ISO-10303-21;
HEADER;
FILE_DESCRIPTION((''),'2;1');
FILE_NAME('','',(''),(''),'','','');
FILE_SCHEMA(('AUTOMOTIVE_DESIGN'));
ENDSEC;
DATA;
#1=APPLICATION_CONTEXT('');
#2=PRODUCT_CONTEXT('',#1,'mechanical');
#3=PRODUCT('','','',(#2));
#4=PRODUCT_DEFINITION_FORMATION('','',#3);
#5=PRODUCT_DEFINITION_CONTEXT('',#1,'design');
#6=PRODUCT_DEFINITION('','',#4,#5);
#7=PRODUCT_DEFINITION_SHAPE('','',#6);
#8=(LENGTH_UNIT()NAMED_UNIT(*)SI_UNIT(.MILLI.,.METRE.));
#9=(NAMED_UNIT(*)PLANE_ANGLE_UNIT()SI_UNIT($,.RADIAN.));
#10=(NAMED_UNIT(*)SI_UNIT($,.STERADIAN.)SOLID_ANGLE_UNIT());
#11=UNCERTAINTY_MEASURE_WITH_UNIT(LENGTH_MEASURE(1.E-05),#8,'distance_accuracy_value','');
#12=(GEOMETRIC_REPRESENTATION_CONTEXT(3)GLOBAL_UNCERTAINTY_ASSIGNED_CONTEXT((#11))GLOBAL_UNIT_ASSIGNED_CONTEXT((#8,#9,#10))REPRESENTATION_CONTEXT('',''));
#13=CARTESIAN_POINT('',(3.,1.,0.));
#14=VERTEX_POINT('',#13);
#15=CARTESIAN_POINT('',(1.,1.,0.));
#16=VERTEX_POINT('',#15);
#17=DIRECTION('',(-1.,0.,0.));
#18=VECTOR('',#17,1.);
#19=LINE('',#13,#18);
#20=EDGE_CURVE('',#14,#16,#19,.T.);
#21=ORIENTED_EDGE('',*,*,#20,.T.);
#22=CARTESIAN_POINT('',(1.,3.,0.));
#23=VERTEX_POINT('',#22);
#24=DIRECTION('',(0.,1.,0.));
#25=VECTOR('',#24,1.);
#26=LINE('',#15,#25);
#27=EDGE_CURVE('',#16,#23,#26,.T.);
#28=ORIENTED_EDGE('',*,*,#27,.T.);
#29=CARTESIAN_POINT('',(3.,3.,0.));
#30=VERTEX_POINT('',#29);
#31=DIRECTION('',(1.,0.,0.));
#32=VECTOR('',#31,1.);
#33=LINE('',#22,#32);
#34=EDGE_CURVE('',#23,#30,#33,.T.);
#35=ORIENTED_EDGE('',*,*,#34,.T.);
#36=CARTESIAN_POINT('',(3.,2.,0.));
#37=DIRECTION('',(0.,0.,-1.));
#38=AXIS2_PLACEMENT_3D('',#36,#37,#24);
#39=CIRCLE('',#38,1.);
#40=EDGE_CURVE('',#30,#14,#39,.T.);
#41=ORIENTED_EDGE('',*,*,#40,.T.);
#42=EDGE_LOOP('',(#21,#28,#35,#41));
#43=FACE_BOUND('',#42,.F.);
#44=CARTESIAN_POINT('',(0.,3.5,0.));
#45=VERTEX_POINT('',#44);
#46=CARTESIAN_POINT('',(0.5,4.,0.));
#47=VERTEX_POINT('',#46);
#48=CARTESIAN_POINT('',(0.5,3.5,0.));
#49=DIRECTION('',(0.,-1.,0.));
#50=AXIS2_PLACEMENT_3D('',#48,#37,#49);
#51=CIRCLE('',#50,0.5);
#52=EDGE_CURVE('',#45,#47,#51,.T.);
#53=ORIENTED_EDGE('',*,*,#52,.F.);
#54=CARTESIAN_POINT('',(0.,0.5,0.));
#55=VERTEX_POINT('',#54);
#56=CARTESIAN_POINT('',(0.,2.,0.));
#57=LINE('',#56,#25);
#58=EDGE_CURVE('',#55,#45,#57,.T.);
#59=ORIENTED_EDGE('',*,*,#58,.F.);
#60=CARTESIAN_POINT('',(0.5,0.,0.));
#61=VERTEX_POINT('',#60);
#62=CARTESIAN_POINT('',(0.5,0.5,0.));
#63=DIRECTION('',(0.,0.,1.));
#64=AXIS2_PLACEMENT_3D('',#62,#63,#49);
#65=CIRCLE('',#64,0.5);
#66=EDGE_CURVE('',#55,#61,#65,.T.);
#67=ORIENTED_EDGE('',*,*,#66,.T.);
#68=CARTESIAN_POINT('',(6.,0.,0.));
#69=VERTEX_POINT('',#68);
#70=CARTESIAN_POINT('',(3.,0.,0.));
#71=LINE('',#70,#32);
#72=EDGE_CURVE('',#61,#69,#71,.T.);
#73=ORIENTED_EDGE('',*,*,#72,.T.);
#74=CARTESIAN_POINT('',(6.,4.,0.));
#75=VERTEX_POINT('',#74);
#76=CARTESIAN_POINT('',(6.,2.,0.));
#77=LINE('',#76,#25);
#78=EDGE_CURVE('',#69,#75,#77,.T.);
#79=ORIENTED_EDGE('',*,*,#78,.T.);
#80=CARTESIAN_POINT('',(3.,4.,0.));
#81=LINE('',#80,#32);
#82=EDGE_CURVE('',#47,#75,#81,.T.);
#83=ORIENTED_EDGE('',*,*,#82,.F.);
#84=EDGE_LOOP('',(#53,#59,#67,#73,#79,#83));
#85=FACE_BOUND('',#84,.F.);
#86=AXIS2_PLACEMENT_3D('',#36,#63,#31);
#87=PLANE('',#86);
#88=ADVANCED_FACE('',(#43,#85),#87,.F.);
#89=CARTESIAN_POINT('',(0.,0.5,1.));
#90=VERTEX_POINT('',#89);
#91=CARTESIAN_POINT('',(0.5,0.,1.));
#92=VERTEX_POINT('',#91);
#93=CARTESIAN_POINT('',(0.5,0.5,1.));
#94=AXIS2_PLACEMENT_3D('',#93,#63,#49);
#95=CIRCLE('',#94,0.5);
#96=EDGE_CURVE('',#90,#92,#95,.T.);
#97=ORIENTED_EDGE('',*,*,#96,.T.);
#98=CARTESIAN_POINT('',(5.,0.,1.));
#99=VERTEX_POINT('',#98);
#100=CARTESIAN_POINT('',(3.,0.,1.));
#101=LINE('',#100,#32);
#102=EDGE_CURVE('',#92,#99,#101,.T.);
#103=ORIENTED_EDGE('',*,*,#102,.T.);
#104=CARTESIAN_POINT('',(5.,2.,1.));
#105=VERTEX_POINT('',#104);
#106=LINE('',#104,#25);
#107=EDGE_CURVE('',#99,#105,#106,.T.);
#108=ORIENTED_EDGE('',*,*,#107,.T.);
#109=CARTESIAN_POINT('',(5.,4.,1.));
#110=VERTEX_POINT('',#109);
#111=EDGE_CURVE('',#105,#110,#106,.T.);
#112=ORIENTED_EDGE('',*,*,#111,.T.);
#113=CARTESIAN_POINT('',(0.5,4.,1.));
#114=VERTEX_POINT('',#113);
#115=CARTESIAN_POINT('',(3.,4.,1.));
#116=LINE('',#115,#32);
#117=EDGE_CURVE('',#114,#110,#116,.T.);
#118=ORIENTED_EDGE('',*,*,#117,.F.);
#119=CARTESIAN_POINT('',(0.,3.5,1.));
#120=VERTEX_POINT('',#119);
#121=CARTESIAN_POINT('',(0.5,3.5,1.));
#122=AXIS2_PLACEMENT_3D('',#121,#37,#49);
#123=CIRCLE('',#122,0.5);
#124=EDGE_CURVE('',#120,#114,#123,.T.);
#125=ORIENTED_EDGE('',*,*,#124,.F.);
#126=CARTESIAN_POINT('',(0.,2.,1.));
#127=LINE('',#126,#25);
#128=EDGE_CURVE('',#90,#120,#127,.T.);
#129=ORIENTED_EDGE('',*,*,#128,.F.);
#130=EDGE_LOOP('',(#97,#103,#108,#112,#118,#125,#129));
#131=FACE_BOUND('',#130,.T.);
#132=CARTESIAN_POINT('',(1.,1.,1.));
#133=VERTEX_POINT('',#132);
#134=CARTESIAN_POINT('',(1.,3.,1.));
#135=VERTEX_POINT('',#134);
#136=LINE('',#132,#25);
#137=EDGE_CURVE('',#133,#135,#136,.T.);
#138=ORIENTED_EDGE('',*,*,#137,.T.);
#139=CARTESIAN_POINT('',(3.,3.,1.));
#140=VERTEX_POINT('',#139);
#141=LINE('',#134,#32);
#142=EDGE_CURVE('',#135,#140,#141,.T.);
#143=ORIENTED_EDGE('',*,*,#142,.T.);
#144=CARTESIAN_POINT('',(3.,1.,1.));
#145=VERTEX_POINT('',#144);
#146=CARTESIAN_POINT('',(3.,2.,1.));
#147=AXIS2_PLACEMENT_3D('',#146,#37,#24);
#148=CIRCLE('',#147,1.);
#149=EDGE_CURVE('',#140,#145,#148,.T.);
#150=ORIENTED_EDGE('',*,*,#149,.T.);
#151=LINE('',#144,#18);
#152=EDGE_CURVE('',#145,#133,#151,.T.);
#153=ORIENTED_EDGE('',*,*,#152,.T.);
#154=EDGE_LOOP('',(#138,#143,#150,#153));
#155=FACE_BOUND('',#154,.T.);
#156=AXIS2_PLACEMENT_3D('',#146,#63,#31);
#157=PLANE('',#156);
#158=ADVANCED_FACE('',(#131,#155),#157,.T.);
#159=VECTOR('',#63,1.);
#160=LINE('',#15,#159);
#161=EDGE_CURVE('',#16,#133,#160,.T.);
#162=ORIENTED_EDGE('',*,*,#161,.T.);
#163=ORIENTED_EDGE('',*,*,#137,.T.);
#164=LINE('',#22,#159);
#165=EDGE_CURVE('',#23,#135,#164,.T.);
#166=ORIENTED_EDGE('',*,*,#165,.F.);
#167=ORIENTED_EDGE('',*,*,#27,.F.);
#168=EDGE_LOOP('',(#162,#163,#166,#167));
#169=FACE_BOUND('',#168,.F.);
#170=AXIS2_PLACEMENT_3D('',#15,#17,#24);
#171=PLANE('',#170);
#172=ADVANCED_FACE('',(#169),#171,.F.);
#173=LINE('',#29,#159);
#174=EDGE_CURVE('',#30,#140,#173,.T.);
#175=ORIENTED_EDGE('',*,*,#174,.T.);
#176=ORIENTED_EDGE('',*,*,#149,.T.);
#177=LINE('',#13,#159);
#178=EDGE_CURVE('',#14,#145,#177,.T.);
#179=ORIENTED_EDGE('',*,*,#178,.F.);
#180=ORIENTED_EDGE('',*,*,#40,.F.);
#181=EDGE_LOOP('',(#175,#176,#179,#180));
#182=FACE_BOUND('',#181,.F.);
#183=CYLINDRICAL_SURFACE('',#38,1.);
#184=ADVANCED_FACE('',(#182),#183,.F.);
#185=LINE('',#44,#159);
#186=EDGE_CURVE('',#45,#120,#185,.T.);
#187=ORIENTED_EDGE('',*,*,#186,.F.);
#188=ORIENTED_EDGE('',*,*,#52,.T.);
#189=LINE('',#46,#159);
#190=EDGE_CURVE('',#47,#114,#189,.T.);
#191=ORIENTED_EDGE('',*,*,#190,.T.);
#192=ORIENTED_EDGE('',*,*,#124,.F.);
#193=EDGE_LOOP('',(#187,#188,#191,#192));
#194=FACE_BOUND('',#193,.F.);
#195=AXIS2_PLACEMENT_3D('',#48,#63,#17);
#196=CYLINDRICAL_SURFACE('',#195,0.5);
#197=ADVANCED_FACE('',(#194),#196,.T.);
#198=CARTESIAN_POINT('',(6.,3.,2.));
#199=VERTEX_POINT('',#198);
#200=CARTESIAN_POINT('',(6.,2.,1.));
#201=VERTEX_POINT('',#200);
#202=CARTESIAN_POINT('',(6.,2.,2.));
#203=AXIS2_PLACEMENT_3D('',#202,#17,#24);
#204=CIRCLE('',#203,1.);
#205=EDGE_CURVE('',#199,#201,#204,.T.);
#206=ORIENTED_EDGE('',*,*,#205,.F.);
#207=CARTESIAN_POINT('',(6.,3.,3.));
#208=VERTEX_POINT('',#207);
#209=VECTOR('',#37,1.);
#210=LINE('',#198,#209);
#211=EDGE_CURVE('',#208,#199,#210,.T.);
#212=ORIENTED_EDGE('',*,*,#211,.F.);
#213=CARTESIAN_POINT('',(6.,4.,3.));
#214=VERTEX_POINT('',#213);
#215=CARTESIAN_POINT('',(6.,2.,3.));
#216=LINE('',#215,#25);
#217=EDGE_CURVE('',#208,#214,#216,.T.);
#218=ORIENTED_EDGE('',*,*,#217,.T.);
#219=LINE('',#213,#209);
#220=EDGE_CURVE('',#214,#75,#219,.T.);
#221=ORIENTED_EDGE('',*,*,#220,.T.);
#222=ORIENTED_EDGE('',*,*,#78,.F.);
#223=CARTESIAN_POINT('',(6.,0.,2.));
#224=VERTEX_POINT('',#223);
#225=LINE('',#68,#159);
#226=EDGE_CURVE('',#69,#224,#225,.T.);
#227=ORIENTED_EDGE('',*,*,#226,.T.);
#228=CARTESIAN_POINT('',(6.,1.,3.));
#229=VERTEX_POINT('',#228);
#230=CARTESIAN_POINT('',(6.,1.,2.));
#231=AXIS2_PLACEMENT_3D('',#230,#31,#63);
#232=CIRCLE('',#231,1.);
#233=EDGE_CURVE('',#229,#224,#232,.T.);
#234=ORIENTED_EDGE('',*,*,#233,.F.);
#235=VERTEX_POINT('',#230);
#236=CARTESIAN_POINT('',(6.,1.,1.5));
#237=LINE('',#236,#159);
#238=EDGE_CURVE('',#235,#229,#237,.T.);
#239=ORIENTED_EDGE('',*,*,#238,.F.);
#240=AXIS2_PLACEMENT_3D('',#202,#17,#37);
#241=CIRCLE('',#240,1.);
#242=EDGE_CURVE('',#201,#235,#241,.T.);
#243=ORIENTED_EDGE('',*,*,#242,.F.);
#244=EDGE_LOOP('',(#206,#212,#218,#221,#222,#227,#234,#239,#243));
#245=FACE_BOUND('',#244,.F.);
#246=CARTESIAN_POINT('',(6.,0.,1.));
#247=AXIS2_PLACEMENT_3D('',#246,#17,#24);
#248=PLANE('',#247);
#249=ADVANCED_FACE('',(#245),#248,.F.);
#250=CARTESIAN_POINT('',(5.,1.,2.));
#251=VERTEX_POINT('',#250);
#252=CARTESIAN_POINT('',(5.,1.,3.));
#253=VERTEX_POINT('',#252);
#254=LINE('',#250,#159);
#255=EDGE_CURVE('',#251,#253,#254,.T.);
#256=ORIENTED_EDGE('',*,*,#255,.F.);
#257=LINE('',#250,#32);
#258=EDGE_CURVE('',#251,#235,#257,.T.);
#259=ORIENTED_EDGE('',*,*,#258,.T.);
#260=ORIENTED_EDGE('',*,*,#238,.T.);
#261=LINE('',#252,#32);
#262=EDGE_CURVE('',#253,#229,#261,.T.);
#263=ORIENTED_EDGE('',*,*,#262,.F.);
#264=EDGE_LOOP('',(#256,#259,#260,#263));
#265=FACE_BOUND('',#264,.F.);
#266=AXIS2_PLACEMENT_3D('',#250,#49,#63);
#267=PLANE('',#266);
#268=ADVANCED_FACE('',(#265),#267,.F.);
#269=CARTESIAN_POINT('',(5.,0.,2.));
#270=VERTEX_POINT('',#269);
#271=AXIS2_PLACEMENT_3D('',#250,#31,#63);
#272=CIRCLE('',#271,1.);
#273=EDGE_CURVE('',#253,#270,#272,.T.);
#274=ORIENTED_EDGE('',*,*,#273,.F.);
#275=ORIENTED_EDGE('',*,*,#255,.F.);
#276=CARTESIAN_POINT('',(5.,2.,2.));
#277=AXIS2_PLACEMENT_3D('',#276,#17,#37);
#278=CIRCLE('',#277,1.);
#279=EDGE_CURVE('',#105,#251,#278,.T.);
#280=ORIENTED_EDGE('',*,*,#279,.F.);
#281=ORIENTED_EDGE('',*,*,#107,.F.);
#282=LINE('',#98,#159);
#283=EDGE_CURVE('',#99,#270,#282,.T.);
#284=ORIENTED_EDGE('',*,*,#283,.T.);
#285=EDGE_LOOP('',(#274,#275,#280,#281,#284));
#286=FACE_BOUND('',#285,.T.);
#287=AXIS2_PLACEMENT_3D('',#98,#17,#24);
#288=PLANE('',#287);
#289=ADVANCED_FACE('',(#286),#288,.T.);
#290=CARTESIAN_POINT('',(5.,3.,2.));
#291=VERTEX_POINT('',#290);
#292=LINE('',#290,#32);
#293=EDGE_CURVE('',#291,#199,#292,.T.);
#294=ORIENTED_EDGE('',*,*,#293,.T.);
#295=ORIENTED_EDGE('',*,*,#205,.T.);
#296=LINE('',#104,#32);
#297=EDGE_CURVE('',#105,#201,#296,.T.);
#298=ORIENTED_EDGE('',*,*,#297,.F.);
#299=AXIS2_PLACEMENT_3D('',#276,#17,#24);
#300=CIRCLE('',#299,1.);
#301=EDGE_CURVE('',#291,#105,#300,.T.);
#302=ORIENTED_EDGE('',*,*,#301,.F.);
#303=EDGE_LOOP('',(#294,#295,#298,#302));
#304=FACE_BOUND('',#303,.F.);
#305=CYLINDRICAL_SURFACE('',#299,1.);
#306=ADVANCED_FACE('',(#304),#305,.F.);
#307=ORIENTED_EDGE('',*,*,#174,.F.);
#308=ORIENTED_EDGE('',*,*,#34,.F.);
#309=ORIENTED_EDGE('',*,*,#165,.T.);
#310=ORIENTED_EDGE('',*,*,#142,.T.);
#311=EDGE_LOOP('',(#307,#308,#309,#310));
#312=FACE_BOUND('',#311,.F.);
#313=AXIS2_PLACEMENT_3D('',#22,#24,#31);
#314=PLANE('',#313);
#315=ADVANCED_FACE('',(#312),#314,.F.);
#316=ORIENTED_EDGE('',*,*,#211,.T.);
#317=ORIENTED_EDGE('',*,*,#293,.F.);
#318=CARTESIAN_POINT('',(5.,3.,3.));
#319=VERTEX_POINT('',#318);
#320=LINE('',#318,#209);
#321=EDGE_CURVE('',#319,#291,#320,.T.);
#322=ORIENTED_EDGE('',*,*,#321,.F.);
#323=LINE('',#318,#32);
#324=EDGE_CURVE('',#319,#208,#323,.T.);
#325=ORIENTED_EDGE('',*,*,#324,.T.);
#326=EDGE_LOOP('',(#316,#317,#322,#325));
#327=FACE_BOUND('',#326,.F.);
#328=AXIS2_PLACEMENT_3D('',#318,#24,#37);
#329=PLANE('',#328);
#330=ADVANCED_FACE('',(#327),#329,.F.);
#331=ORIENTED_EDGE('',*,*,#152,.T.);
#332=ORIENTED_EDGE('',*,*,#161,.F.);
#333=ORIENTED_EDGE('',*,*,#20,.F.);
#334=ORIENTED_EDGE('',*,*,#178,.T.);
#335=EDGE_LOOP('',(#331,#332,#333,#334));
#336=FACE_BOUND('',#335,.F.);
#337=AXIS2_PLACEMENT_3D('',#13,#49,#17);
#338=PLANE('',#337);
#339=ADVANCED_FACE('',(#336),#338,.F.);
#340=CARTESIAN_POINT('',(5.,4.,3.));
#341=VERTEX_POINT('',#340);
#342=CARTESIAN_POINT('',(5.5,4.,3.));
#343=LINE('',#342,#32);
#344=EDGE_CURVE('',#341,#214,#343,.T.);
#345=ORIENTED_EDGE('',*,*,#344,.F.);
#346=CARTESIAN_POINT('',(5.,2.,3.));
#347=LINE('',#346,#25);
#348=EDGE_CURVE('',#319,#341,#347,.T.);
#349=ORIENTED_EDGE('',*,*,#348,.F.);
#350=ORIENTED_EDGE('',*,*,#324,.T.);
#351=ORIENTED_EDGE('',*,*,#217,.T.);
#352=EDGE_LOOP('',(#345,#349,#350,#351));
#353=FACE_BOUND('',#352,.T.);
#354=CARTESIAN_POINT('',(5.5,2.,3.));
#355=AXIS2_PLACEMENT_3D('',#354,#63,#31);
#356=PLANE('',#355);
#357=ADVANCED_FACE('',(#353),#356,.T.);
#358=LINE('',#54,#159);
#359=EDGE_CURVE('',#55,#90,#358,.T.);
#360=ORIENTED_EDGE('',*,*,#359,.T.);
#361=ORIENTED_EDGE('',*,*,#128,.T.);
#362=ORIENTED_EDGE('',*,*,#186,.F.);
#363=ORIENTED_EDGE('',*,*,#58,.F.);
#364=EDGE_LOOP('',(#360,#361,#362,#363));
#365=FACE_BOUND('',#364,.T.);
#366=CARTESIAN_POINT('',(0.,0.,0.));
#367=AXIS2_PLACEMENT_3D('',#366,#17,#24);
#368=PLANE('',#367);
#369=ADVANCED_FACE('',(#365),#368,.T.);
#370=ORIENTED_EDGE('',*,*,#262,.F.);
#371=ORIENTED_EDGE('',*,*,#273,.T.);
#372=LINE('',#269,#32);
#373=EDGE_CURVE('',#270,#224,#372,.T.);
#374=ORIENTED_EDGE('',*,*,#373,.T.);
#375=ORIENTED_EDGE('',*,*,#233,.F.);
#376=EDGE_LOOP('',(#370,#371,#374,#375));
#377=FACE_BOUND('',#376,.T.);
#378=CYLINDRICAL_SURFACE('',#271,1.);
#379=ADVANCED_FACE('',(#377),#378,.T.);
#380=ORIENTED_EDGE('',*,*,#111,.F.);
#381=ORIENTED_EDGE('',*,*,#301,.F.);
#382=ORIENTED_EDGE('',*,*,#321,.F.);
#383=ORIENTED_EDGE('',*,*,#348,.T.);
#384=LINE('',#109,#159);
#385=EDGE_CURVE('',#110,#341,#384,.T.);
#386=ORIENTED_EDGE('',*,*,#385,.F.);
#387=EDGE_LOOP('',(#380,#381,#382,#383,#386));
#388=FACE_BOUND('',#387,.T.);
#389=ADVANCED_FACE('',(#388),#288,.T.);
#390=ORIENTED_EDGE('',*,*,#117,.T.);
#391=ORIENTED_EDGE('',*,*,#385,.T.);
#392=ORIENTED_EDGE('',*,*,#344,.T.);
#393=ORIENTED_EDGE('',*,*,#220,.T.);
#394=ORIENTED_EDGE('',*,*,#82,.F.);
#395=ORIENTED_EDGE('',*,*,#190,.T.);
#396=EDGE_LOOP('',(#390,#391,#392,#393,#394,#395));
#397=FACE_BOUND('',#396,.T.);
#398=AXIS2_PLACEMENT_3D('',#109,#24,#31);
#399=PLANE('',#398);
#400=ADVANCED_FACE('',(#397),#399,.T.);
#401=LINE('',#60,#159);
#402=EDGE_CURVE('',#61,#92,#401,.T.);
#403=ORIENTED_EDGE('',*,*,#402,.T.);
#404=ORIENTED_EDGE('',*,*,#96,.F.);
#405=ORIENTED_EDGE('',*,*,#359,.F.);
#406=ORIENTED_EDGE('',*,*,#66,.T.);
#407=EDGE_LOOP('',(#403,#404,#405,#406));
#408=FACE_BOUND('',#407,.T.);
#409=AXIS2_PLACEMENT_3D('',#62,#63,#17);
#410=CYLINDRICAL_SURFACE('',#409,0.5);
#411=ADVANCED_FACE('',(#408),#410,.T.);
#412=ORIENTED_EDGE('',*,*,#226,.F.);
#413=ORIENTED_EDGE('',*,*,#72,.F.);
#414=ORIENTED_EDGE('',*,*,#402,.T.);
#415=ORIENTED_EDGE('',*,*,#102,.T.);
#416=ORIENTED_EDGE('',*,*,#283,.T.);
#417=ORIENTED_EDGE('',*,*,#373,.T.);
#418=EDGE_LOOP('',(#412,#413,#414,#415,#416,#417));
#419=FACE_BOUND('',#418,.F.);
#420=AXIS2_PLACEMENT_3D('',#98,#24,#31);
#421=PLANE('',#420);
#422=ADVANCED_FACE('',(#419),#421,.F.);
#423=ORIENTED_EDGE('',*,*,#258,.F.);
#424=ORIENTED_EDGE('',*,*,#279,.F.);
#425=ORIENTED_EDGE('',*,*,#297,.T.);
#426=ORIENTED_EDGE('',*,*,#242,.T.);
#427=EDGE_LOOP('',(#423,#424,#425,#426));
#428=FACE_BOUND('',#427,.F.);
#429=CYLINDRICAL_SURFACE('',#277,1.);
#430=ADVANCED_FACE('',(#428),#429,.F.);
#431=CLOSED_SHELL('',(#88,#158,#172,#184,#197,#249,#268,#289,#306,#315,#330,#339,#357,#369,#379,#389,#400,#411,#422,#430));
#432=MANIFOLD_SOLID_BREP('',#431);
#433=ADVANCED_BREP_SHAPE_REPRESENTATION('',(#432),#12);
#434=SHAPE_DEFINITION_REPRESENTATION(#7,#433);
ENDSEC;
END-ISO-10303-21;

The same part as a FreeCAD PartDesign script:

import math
import FreeCAD as App
import Part
import Sketcher

V = App.Vector


def edges_at(feature, points):
    """Names of the edges that pass closest to the given points."""
    edges = feature.Shape.Edges
    near = lambda p: min(range(len(edges)), key=lambda i: edges[i].distToShape(Part.Vertex(*p))[0])
    return sorted({f"Edge{near(p) + 1}" for p in points})


def add_polygon(sketch, points):
    """Adds a closed chain of lines whose ends are joined by coincident constraints."""
    first, n = sketch.GeometryCount, len(points)
    for a, b in zip(points, points[1:] + points[:1]):
        sketch.addGeometry(Part.LineSegment(App.Vector(*a, 0), App.Vector(*b, 0)), False)
    for i in range(n):
        sketch.addConstraint(Sketcher.Constraint("Coincident", first + i, 2, first + (i + 1) % n, 1))

doc = App.newDocument("Part")
params = doc.addObject("Spreadsheet::Sheet", "Params")
for row, (alias, value) in enumerate([
    ("sketch1_radius", "1 mm"),
    ("sketch1_width", "6 mm"),
    ("sketch1_height", "4 mm"),
    ("pad1_length", "1 mm"),
    ("fillet_radius", "0.5 mm"),
    ("sketch2_width", "1 mm"),
    ("sketch2_height", "4 mm"),
    ("pad2_length", "2 mm"),
    ("fillet2_radius", "1 mm"),
    ("sketch3_radius", "1 mm"),
    ("sketch3_height", "1 mm"),
    ("pocket1_length", "25 mm"),
], start=1):
    params.set(f"A{row}", alias)
    params.set(f"B{row}", "=" + value)
    params.setAlias(f"B{row}", alias)

body = doc.addObject("PartDesign::Body", "Body")

sketch1 = body.newObject("Sketcher::SketchObject", "Sketch")
sketch1.AttachmentSupport = (doc.getObject("XY_Plane"), [""])
sketch1.MapMode = "FlatFace"
add_polygon(sketch1, [(0, 4), (0, 0), (6, 0), (6, 4)])
sketch1.addGeometry(Part.ArcOfCircle(Part.Circle(V(3, 2, 0), V(0, 0, 1), 1), math.radians(-90), math.radians(90)), False)
sketch1.addGeometry(Part.LineSegment(V(3, 1, 0), V(1, 1, 0)), False)
sketch1.addGeometry(Part.LineSegment(V(1, 1, 0), V(1, 3, 0)), False)
sketch1.addGeometry(Part.LineSegment(V(1, 3, 0), V(3, 3, 0)), False)
sketch1.addConstraint([
    Sketcher.Constraint("Tangent", 4, 1, 5, 1),
    Sketcher.Constraint("Coincident", 5, 2, 6, 1),
    Sketcher.Constraint("Coincident", 6, 2, 7, 1),
    Sketcher.Constraint("Tangent", 7, 2, 4, 2),
    Sketcher.Constraint("Vertical", 0),
    Sketcher.Constraint("Horizontal", 1),
    Sketcher.Constraint("Vertical", 2),
    Sketcher.Constraint("Horizontal", 3),
    Sketcher.Constraint("Horizontal", 5),
    Sketcher.Constraint("Vertical", 6),
    Sketcher.Constraint("Horizontal", 7),
    Sketcher.Constraint("Coincident", 0, 2, -1, 1),
    Sketcher.Constraint("Equal", 7, 6),
    Sketcher.Constraint("Radius", 4, 1.0),
    Sketcher.Constraint("DistanceX", 1, 1, 1, 2, 6.0),
    Sketcher.Constraint("DistanceY", 0, 2, 0, 1, 4.0),
    Sketcher.Constraint("DistanceX", -1, 1, 4, 3, 3.0),
    Sketcher.Constraint("DistanceY", -1, 1, 4, 3, 2.0),
])
sketch1.setExpression("Constraints[17]", "Params.sketch1_radius")
sketch1.setExpression("Constraints[18]", "Params.sketch1_width")
sketch1.setExpression("Constraints[19]", "Params.sketch1_height")
pad1 = body.newObject("PartDesign::Pad", "Pad")
pad1.Profile = sketch1
pad1.setExpression("Length", "Params.pad1_length")
doc.recompute()

fillet = body.newObject("PartDesign::Fillet", "Fillet")
fillet.Base = (pad1, edges_at(pad1, [(0, 0, 0.5), (0, 4, 0.5)]))
fillet.setExpression("Radius", "Params.fillet_radius")

sketch2 = body.newObject("Sketcher::SketchObject", "Sketch001")
sketch2.AttachmentSupport = (doc.getObject("XY_Plane"), [""])
sketch2.MapMode = "FlatFace"
sketch2.AttachmentOffset = App.Placement(V(0, 0, 1), App.Rotation())
add_polygon(sketch2, [(5, 4), (5, 0), (6, 0), (6, 4)])
sketch2.addConstraint([
    Sketcher.Constraint("Vertical", 0),
    Sketcher.Constraint("Horizontal", 1),
    Sketcher.Constraint("Vertical", 2),
    Sketcher.Constraint("Horizontal", 3),
    Sketcher.Constraint("PointOnObject", 0, 2, -1),
    Sketcher.Constraint("DistanceX", 1, 1, 1, 2, 1.0),
    Sketcher.Constraint("DistanceY", 0, 2, 0, 1, 4.0),
    Sketcher.Constraint("DistanceX", -1, 1, 0, 2, 5.0),
])
sketch2.setExpression("Constraints[9]", "Params.sketch2_width")
sketch2.setExpression("Constraints[10]", "Params.sketch2_height")
pad2 = body.newObject("PartDesign::Pad", "Pad001")
pad2.Profile = sketch2
pad2.setExpression("Length", "Params.pad2_length")
doc.recompute()

fillet2 = body.newObject("PartDesign::Fillet", "Fillet001")
fillet2.Base = (pad2, edges_at(pad2, [(5.5, 0, 3)]))
fillet2.setExpression("Radius", "Params.fillet2_radius")

sketch3 = body.newObject("Sketcher::SketchObject", "Sketch002")
sketch3.AttachmentSupport = (doc.getObject("YZ_Plane"), [""])
sketch3.MapMode = "FlatFace"
sketch3.AttachmentOffset = App.Placement(V(0, 0, 5), App.Rotation())
sketch3.addGeometry([
    Part.LineSegment(V(1, 3, 0), V(3, 3, 0)),
    Part.LineSegment(V(3, 3, 0), V(3, 2, 0)),
    Part.ArcOfCircle(Part.Circle(V(2, 2, 0), V(0, 0, 1), 1), math.radians(-90), math.radians(0)),
    Part.ArcOfCircle(Part.Circle(V(2, 2, 0), V(0, 0, 1), 1), math.radians(180), math.radians(270)),
    Part.LineSegment(V(1, 2, 0), V(1, 3, 0)),
], False)
sketch3.addConstraint([
    Sketcher.Constraint("Coincident", 0, 2, 1, 1),
    Sketcher.Constraint("Tangent", 1, 2, 2, 2),
    Sketcher.Constraint("Tangent", 2, 1, 3, 2),
    Sketcher.Constraint("Tangent", 3, 1, 4, 1),
    Sketcher.Constraint("Coincident", 4, 2, 0, 1),
    Sketcher.Constraint("Horizontal", 0),
    Sketcher.Constraint("Vertical", 1),
    Sketcher.Constraint("Vertical", 4),
    Sketcher.Constraint("Equal", 2, 3),
    Sketcher.Constraint("Vertical", 3, 3, 2, 1),
    Sketcher.Constraint("Radius", 2, 1.0),
    Sketcher.Constraint("DistanceY", 1, 2, 1, 1, 1.0),
    Sketcher.Constraint("DistanceX", -1, 1, 2, 3, 2.0),
    Sketcher.Constraint("DistanceY", -1, 1, 2, 3, 2.0),
])
sketch3.setExpression("Constraints[10]", "Params.sketch3_radius")
sketch3.setExpression("Constraints[11]", "Params.sketch3_height")
pocket1 = body.newObject("PartDesign::Pocket", "Pocket")
pocket1.Profile = sketch3
pocket1.setExpression("Length", "Params.pocket1_length")
pocket1.Reversed = True

doc.recompute()
